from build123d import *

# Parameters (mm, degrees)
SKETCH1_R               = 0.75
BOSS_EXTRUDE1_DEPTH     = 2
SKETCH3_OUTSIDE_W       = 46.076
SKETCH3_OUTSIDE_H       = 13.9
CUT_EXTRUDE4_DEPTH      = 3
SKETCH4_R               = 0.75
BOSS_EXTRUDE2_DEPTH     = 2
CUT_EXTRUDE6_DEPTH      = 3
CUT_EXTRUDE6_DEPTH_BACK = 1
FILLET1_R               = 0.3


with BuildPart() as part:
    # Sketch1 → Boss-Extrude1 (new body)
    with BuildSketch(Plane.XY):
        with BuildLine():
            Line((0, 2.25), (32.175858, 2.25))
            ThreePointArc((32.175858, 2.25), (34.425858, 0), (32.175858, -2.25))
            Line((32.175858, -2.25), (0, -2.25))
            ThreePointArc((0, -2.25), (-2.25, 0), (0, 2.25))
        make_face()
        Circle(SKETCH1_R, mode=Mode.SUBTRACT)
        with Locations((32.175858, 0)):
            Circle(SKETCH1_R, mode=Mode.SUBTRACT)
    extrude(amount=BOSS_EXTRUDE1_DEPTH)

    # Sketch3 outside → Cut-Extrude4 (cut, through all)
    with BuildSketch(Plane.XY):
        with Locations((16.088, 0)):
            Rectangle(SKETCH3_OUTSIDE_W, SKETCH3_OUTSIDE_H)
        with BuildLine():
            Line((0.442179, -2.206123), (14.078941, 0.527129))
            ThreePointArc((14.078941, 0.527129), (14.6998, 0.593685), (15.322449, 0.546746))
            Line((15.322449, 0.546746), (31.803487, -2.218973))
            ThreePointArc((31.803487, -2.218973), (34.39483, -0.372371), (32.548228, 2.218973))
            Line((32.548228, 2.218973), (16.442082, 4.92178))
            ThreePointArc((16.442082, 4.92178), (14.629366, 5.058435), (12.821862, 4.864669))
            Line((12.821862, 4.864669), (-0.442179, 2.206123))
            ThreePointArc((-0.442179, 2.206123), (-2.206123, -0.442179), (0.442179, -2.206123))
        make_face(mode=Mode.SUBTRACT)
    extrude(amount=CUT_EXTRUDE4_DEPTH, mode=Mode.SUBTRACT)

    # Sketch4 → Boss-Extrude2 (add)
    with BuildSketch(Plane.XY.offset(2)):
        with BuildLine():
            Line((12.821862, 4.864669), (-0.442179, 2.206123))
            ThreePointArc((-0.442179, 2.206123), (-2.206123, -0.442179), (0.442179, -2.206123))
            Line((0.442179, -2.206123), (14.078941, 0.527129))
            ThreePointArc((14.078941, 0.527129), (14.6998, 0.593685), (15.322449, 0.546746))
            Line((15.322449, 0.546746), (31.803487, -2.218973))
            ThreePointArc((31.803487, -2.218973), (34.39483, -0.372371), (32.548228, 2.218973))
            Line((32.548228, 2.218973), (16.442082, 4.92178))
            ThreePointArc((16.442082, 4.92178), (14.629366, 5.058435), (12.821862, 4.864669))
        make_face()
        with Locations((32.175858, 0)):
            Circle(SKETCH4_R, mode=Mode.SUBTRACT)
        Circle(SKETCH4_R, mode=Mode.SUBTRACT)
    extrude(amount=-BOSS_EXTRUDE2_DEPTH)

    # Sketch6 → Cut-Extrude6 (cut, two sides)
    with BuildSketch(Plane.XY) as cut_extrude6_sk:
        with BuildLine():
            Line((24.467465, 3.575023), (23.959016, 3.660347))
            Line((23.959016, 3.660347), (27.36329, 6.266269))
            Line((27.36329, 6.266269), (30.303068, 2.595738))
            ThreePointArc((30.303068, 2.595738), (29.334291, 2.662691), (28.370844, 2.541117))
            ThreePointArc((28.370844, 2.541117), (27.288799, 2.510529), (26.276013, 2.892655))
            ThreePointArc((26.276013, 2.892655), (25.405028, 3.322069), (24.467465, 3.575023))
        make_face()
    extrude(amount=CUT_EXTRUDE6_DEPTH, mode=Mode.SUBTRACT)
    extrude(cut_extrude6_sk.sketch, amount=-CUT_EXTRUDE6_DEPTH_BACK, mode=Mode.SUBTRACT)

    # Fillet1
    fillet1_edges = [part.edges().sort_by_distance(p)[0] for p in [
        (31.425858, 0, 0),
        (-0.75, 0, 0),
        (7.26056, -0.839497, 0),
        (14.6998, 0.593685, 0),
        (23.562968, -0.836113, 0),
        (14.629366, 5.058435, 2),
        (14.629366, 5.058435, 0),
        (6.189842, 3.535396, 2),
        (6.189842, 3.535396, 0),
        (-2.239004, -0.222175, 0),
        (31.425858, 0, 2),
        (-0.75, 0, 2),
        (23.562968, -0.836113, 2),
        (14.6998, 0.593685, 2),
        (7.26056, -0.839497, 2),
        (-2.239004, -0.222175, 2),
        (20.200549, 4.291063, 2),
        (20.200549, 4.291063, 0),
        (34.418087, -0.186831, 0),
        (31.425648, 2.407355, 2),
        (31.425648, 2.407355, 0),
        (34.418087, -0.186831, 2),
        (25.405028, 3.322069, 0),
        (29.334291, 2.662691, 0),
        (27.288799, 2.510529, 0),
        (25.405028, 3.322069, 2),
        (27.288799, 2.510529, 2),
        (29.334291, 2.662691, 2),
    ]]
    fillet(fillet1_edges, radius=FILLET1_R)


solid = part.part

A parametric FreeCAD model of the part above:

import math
import FreeCAD as App
import Part
import Sketcher

V = App.Vector


def edges_at(feature, points):
    """Names of the edges that pass closest to the given points."""
    edges = feature.Shape.Edges
    near = lambda p: min(range(len(edges)), key=lambda i: edges[i].distToShape(Part.Vertex(*p))[0])
    return sorted({f"Edge{near(p) + 1}" for p in points})

doc = App.newDocument("Part")
body = doc.addObject("PartDesign::Body", "Body")

# Sketch on XY plane
sketch1 = doc.addObject("Sketcher::SketchObject", "Sketch")
body.addObject(sketch1)
sketch1.AttachmentSupport = (doc.XY_Plane, [""])
sketch1.MapMode = "FlatFace"
sketch1.addGeometry([
    Part.LineSegment(V(32.175858, 2.25, 0), V(0, 2.25, 0)),  # 0
    Part.ArcOfCircle(Part.Circle(V(0, 0, 0), V(0, 0, 1), 2.25), math.radians(90), math.radians(270)),  # 1
    Part.LineSegment(V(0, -2.25, 0), V(32.175858, -2.25, 0)),  # 2
    Part.ArcOfCircle(Part.Circle(V(32.175858, 0, 0), V(0, 0, 1), 2.25), math.radians(-90), math.radians(90)),  # 3
    Part.Circle(V(32.175858, 0, 0), V(0, 0, 1), 0.75),  # 4
    Part.Circle(V(0, 0, 0), V(0, 0, 1), 0.75),  # 5
], False)
sketch1.addConstraint([
    Sketcher.Constraint("Tangent", 0, 2, 1, 1),
    Sketcher.Constraint("Tangent", 1, 2, 2, 1),
    Sketcher.Constraint("Tangent", 2, 2, 3, 1),
    Sketcher.Constraint("Tangent", 3, 2, 0, 1),
    Sketcher.Constraint("Horizontal", 0),
    Sketcher.Constraint("Horizontal", 2),
    Sketcher.Constraint("Coincident", 1, 3, -1, 1),
    Sketcher.Constraint("Coincident", 5, 3, -1, 1),
    Sketcher.Constraint("Coincident", 4, 3, 3, 3),
    Sketcher.Constraint("Equal", 4, 5),
    Sketcher.Constraint("Diameter", 4, 1.5),
    Sketcher.Constraint("Radius", 1, 2.25),
    Sketcher.Constraint("DistanceX", 0, 2, 0, 1, 32.175858),
])
pad1 = doc.addObject("PartDesign::Pad", "Pad")
body.addObject(pad1)
pad1.Profile = sketch1
pad1.Length = 2

# Sketch on XY plane
sketch2 = doc.addObject("Sketcher::SketchObject", "Sketch001")
body.addObject(sketch2)
sketch2.AttachmentSupport = (doc.XY_Plane, [""])
sketch2.MapMode = "FlatFace"
sketch2.addGeometry([
    Part.LineSegment(V(-6.95, 6.95, 0), V(-6.95, -6.95, 0)),  # 0
    Part.LineSegment(V(-6.95, -6.95, 0), V(39.126, -6.95, 0)),  # 1
    Part.LineSegment(V(39.126, -6.95, 0), V(39.126, 6.95, 0)),  # 2
    Part.LineSegment(V(39.126, 6.95, 0), V(-6.95, 6.95, 0)),  # 3
    Part.LineSegment(V(14.078941, 0.527129, 0), V(0.442179, -2.206123, 0)),  # 4
    Part.ArcOfCircle(Part.Circle(V(0, 0, 0), V(0, 0, 1), 2.25), math.radians(101.333764), math.radians(281.333764)),  # 5
    Part.LineSegment(V(-0.442179, 2.206123, 0), V(12.821862, 4.864669, 0)),  # 6
    Part.ArcOfCircle(Part.Circle(V(14.787101, -4.940302, 0), V(0, 0, 1), 9.999982), math.radians(80.473813), math.radians(101.333783)),  # 7
    Part.LineSegment(V(16.442082, 4.92178, 0), V(32.548228, 2.218973, 0)),  # 8
    Part.ArcOfCircle(Part.Circle(V(32.175857, 0, 0), V(0, 0, 1), 2.25), math.radians(-99.526154), math.radians(80.473825)),  # 9
    Part.LineSegment(V(31.803487, -2.218973, 0), V(15.322449, 0.546746, 0)),  # 10
    Part.ArcOfCircle(Part.Circle(V(14.753981, -2.840813, 0), V(0, 0, 1), 3.434925), math.radians(80.47392), math.radians(101.333673)),  # 11
], False)
sketch2.addConstraint([
    Sketcher.Constraint("Coincident", 0, 2, 1, 1),
    Sketcher.Constraint("Coincident", 1, 2, 2, 1),
    Sketcher.Constraint("Coincident", 2, 2, 3, 1),
    Sketcher.Constraint("Coincident", 3, 2, 0, 1),
    Sketcher.Constraint("Coincident", 4, 2, 5, 2),
    Sketcher.Constraint("Coincident", 5, 1, 6, 1),
    Sketcher.Constraint("Coincident", 6, 2, 7, 2),
    Sketcher.Constraint("Coincident", 7, 1, 8, 1),
    Sketcher.Constraint("Coincident", 8, 2, 9, 2),
    Sketcher.Constraint("Coincident", 9, 1, 10, 1),
    Sketcher.Constraint("Coincident", 10, 2, 11, 1),
    Sketcher.Constraint("Coincident", 11, 2, 4, 1),
    Sketcher.Constraint("Vertical", 0),
    Sketcher.Constraint("Horizontal", 1),
    Sketcher.Constraint("Vertical", 2),
    Sketcher.Constraint("Horizontal", 3),
    Sketcher.Constraint("Coincident", 5, 3, -1, 1),
    Sketcher.Constraint("PointOnObject", 9, 3, -1),
    Sketcher.Constraint("Radius", 5, 2.25),
    Sketcher.Constraint("Radius", 9, 2.25),
    Sketcher.Constraint("DistanceY", 0, 2, 0, 1, 13.9),
    Sketcher.Constraint("DistanceX", 1, 1, 1, 2, 46.076),
    Sketcher.Constraint("DistanceX", 0, 2, -1, 1, 6.95),
    Sketcher.Constraint("DistanceY", 0, 2, -1, 1, 6.95),
    Sketcher.Constraint("Radius", 7, 9.999982),
    Sketcher.Constraint("Radius", 11, 3.434925),
    Sketcher.Constraint("DistanceX", -1, 1, 7, 3, 14.787101),
    Sketcher.Constraint("DistanceX", 4, 2, 11, 3, 14.311802),
    Sketcher.Constraint("DistanceX", 11, 3, 7, 1, 1.688101),
    Sketcher.Constraint("Distance", 4, 13.907981),
    Sketcher.Constraint("DistanceX", -1, 1, 11, 3, 14.753981),
    Sketcher.Constraint("DistanceX", 5, 1, -1, 1, 0.442179),
    Sketcher.Constraint("DistanceY", -1, 1, 6, 2, 4.864669),
    Sketcher.Constraint("DistanceY", -1, 1, 7, 1, 4.92178),
    Sketcher.Constraint("DistanceX", -1, 1, 8, 2, 32.548228),
    Sketcher.Constraint("DistanceX", -1, 1, 10, 2, 15.322449),
    Sketcher.Constraint("DistanceX", -1, 1, 11, 2, 14.078941),
    Sketcher.Constraint("DistanceX", 9, 3, 8, 2, 0.372371),
    Sketcher.Constraint("DistanceX", 9, 1, 9, 3, 0.37237),
])
pocket1 = doc.addObject("PartDesign::Pocket", "Pocket")
body.addObject(pocket1)
pocket1.Profile = sketch2
pocket1.Type = "ThroughAll"
pocket1.Reversed = True

# Sketch on XY plane
sketch3 = doc.addObject("Sketcher::SketchObject", "Sketch002")
body.addObject(sketch3)
sketch3.AttachmentSupport = (doc.XY_Plane, [""])
sketch3.MapMode = "FlatFace"
sketch3.AttachmentOffset = App.Placement(V(0, 0, 2), App.Rotation())
sketch3.addGeometry([
    Part.LineSegment(V(12.821862, 4.864669, 0), V(-0.442179, 2.206123, 0)),  # 0
    Part.ArcOfCircle(Part.Circle(V(0, 0, 0), V(0, 0, 1), 2.25), math.radians(101.333764), math.radians(281.333764)),  # 1
    Part.LineSegment(V(0.442179, -2.206123, 0), V(14.078941, 0.527129, 0)),  # 2
    Part.ArcOfCircle(Part.Circle(V(14.753981, -2.840813, 0), V(0, 0, 1), 3.434925), math.radians(80.47392), math.radians(101.333673)),  # 3
    Part.LineSegment(V(15.322449, 0.546746, 0), V(31.803487, -2.218973, 0)),  # 4
    Part.ArcOfCircle(Part.Circle(V(32.175857, 0, 0), V(0, 0, 1), 2.25), math.radians(-99.526154), math.radians(80.473825)),  # 5
    Part.LineSegment(V(32.548228, 2.218973, 0), V(16.442082, 4.92178, 0)),  # 6
    Part.ArcOfCircle(Part.Circle(V(14.787101, -4.940302, 0), V(0, 0, 1), 9.999982), math.radians(80.473813), math.radians(101.333783)),  # 7
    Part.Circle(V(0, 0, 0), V(0, 0, 1), 0.75),  # 8
    Part.Circle(V(32.175858, 0, 0), V(0, 0, 1), 0.75),  # 9
], False)
sketch3.addConstraint([
    Sketcher.Constraint("Coincident", 0, 2, 1, 1),
    Sketcher.Constraint("Coincident", 1, 2, 2, 1),
    Sketcher.Constraint("Coincident", 2, 2, 3, 2),
    Sketcher.Constraint("Coincident", 3, 1, 4, 1),
    Sketcher.Constraint("Coincident", 4, 2, 5, 1),
    Sketcher.Constraint("Coincident", 5, 2, 6, 1),
    Sketcher.Constraint("Coincident", 6, 2, 7, 1),
    Sketcher.Constraint("Coincident", 7, 2, 0, 1),
    Sketcher.Constraint("Coincident", 1, 3, -1, 1),
    Sketcher.Constraint("Coincident", 8, 3, -1, 1),
    Sketcher.Constraint("Coincident", 9, 3, 5, 3),
    Sketcher.Constraint("PointOnObject", 5, 3, -1),
    Sketcher.Constraint("Diameter", 8, 1.5),
    Sketcher.Constraint("Diameter", 9, 1.5),
    Sketcher.Constraint("Radius", 1, 2.25),
    Sketcher.Constraint("Radius", 5, 2.25),
    Sketcher.Constraint("Radius", 7, 9.999982),
    Sketcher.Constraint("Radius", 3, 3.434925),
    Sketcher.Constraint("DistanceX", -1, 1, 7, 3, 14.787101),
    Sketcher.Constraint("DistanceX", 1, 2, 3, 3, 14.311802),
    Sketcher.Constraint("DistanceX", 3, 3, 6, 2, 1.688101),
    Sketcher.Constraint("Distance", 2, 13.907981),
    Sketcher.Constraint("DistanceX", -1, 1, 3, 3, 14.753981),
    Sketcher.Constraint("DistanceX", 0, 2, -1, 1, 0.442179),
    Sketcher.Constraint("DistanceX", -1, 1, 2, 2, 14.078941),
    Sketcher.Constraint("DistanceX", -1, 1, 3, 1, 15.322449),
    Sketcher.Constraint("DistanceY", -1, 1, 6, 2, 4.92178),
    Sketcher.Constraint("DistanceY", -1, 1, 7, 2, 4.864669),
    Sketcher.Constraint("DistanceX", 4, 2, 5, 3, 0.37237),
    Sketcher.Constraint("DistanceX", 9, 3, 5, 2, 0.37237),
    Sketcher.Constraint("DistanceX", 3, 1, 5, 2, 17.225779),
])
pad2 = doc.addObject("PartDesign::Pad", "Pad001")
body.addObject(pad2)
pad2.Profile = sketch3
pad2.Length = 2
pad2.Reversed = True

# Sketch on XY plane
sketch4 = doc.addObject("Sketcher::SketchObject", "Sketch003")
body.addObject(sketch4)
sketch4.AttachmentSupport = (doc.XY_Plane, [""])
sketch4.MapMode = "FlatFace"
sketch4.addGeometry([
    Part.LineSegment(V(23.959016, 3.660347, 0), V(24.467465, 3.575023, 0)),  # 0
    Part.ArcOfCircle(Part.Circle(V(23.639975, -1.356028, 0), V(0, 0, 1), 5), math.radians(58.183025), math.radians(80.473835)),  # 1
    Part.ArcOfCircle(Part.Circle(V(27.752193, 5.271914, 0), V(0, 0, 1), 2.799996), math.radians(-121.816993), math.radians(-77.235337)),  # 2
    Part.ArcOfCircle(Part.Circle(V(29.475577, -2.335309, 0), V(0, 0, 1), 4.999996), math.radians(80.473817), math.radians(102.764648)),  # 3
    Part.LineSegment(V(30.303068, 2.595738, 0), V(27.36329, 6.266269, 0)),  # 4
    Part.LineSegment(V(27.36329, 6.266269, 0), V(23.959016, 3.660347, 0)),  # 5
], False)
sketch4.addConstraint([
    Sketcher.Constraint("Tangent", 0, 2, 1, 2),
    Sketcher.Constraint("Tangent", 1, 1, 2, 1),
    Sketcher.Constraint("Tangent", 2, 2, 3, 2),
    Sketcher.Constraint("Coincident", 3, 1, 4, 1),
    Sketcher.Constraint("Coincident", 4, 2, 5, 1),
    Sketcher.Constraint("Coincident", 5, 2, 0, 1),
    Sketcher.Constraint("Radius", 1, 5.0),
    Sketcher.Constraint("Radius", 2, 2.799996),
    Sketcher.Constraint("Radius", 3, 4.999996),
    Sketcher.Constraint("Distance", 0, 0.515559),
    Sketcher.Constraint("Distance", 4, 4.702669),
    Sketcher.Constraint("Distance", 5, 4.28718),
    Sketcher.Constraint("DistanceY", 3, 3, -1, 1, 2.335309),
    Sketcher.Constraint("DistanceX", -1, 1, 3, 1, 30.303068),
    Sketcher.Constraint("DistanceY", -1, 1, 3, 1, 2.595738),
    Sketcher.Constraint("DistanceX", -1, 1, 4, 2, 27.36329),
    Sketcher.Constraint("DistanceX", 1, 3, 2, 3, 4.112218),
    Sketcher.Constraint("DistanceY", 3, 3, 1, 3, 0.979281),
])
pocket2 = doc.addObject("PartDesign::Pocket", "Pocket001")
body.addObject(pocket2)
pocket2.Profile = sketch4
pocket2.Type = "ThroughAll"
pocket2.Midplane = True
doc.recompute()

fillet = doc.addObject("PartDesign::Fillet", "Fillet")
body.addObject(fillet)
fillet.Base = (pocket2, edges_at(pocket2, [
    (31.426, 0, 0),
    (-0.75, 0, 0),
    (7.261, -0.839, 0),
    (14.7, 0.594, 0),
    (23.563, -0.836, 0),
    (14.629, 5.058, 2),
    (14.629, 5.058, 0),
    (6.19, 3.535, 2),
    (6.19, 3.535, 0),
    (-2.239, -0.222, 0),
    (31.426, 0, 2),
    (-0.75, 0, 2),
    (23.563, -0.836, 2),
    (14.7, 0.594, 2),
    (7.261, -0.839, 2),
    (-2.239, -0.222, 2),
    (20.455, 4.248, 2),
    (20.201, 4.291, 0),
    (34.418, -0.187, 0),
    (31.426, 2.407, 2),
    (31.426, 2.407, 0),
    (34.418, -0.187, 2),
    (25.405, 3.322, 0),
    (29.334, 2.663, 0),
    (27.289, 2.511, 0),
    (25.405, 3.322, 2),
    (27.289, 2.511, 2),
    (29.334, 2.663, 2),
]))
fillet.Radius = 0.3

doc.recompute()
